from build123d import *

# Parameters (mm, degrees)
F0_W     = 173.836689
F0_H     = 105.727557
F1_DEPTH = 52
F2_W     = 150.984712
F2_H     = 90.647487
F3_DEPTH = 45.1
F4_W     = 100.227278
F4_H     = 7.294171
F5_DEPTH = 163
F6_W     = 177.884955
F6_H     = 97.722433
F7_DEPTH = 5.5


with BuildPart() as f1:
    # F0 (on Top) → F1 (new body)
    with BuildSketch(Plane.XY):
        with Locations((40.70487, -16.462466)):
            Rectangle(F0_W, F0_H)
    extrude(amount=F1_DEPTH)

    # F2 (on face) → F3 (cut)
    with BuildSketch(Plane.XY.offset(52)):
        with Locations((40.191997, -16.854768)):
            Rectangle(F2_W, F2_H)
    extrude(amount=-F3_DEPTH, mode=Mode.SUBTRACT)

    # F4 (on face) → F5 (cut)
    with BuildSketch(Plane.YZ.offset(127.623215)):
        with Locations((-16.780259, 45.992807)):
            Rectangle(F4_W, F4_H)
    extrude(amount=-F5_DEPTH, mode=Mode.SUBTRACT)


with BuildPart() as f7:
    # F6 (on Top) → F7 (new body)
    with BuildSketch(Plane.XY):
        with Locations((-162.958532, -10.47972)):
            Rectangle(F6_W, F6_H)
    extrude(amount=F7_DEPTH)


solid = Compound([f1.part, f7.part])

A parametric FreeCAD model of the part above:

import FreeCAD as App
import Part
import Sketcher

doc = App.newDocument("Part")
body = doc.addObject("PartDesign::Body", "Body")

# Sketch on XY plane
sketch1 = body.newObject("Sketcher::SketchObject", "Sketch")
sketch1.AttachmentSupport = (doc.getObject("XY_Plane"), [""])
sketch1.MapMode = "FlatFace"
sketch1.addGeometry([
    Part.LineSegment(App.Vector(-46, 36, 0), App.Vector(-46, -69, 0)),
    Part.LineSegment(App.Vector(-46, -69, 0), App.Vector(128, -69, 0)),
    Part.LineSegment(App.Vector(128, -69, 0), App.Vector(128, 36, 0)),
    Part.LineSegment(App.Vector(128, 36, 0), App.Vector(-46, 36, 0)),
], False)
sketch1.addConstraint([
    Sketcher.Constraint("Coincident", 0, 2, 1, 1),
    Sketcher.Constraint("Coincident", 1, 2, 2, 1),
    Sketcher.Constraint("Coincident", 2, 2, 3, 1),
    Sketcher.Constraint("Coincident", 3, 2, 0, 1),
    Sketcher.Constraint("Vertical", 0),
    Sketcher.Constraint("Horizontal", 1),
    Sketcher.Constraint("Vertical", 2),
    Sketcher.Constraint("Horizontal", 3),
    Sketcher.Constraint("DistanceX", 1, 1, 1, 2, 173.836689),
    Sketcher.Constraint("DistanceY", 0, 2, 0, 1, 105.727557),
    Sketcher.Constraint("DistanceX", 0, 2, -1, 1, 46.213474),
    Sketcher.Constraint("DistanceY", 0, 2, -1, 1, 69.326245),
])
pad1 = body.newObject("PartDesign::Pad", "Pad")
pad1.Profile = sketch1
pad1.Length = 52

# Sketch on XY plane
sketch2 = body.newObject("Sketcher::SketchObject", "Sketch001")
sketch2.AttachmentSupport = (doc.getObject("XY_Plane"), [""])
sketch2.MapMode = "FlatFace"
sketch2.AttachmentOffset = App.Placement(App.Vector(0, 0, 52), App.Rotation())
sketch2.addGeometry([
    Part.LineSegment(App.Vector(-35, 28, 0), App.Vector(-35, -62, 0)),
    Part.LineSegment(App.Vector(-35, -62, 0), App.Vector(116, -62, 0)),
    Part.LineSegment(App.Vector(116, -62, 0), App.Vector(116, 28, 0)),
    Part.LineSegment(App.Vector(116, 28, 0), App.Vector(-35, 28, 0)),
], False)
sketch2.addConstraint([
    Sketcher.Constraint("Coincident", 0, 2, 1, 1),
    Sketcher.Constraint("Coincident", 1, 2, 2, 1),
    Sketcher.Constraint("Coincident", 2, 2, 3, 1),
    Sketcher.Constraint("Coincident", 3, 2, 0, 1),
    Sketcher.Constraint("Vertical", 0),
    Sketcher.Constraint("Horizontal", 1),
    Sketcher.Constraint("Vertical", 2),
    Sketcher.Constraint("Horizontal", 3),
    Sketcher.Constraint("DistanceX", 1, 1, 1, 2, 150.984712),
    Sketcher.Constraint("DistanceY", 0, 2, 0, 1, 90.647487),
    Sketcher.Constraint("DistanceX", 0, 2, -1, 1, 35.300359),
    Sketcher.Constraint("DistanceY", 0, 2, -1, 1, 62.178511),
])
pocket1 = body.newObject("PartDesign::Pocket", "Pocket")
pocket1.Profile = sketch2
pocket1.Length = 45.1

# Sketch on YZ plane
sketch3 = body.newObject("Sketcher::SketchObject", "Sketch002")
sketch3.AttachmentSupport = (doc.getObject("YZ_Plane"), [""])
sketch3.MapMode = "FlatFace"
sketch3.AttachmentOffset = App.Placement(App.Vector(0, 0, 127.623215), App.Rotation())
sketch3.addGeometry([
    Part.LineSegment(App.Vector(-67, 50, 0), App.Vector(-67, 42, 0)),
    Part.LineSegment(App.Vector(-67, 42, 0), App.Vector(33, 42, 0)),
    Part.LineSegment(App.Vector(33, 42, 0), App.Vector(33, 50, 0)),
    Part.LineSegment(App.Vector(33, 50, 0), App.Vector(-67, 50, 0)),
], False)
sketch3.addConstraint([
    Sketcher.Constraint("Coincident", 0, 2, 1, 1),
    Sketcher.Constraint("Coincident", 1, 2, 2, 1),
    Sketcher.Constraint("Coincident", 2, 2, 3, 1),
    Sketcher.Constraint("Coincident", 3, 2, 0, 1),
    Sketcher.Constraint("Vertical", 0),
    Sketcher.Constraint("Horizontal", 1),
    Sketcher.Constraint("Vertical", 2),
    Sketcher.Constraint("Horizontal", 3),
    Sketcher.Constraint("DistanceY", 0, 2, 0, 1, 7.294171),
    Sketcher.Constraint("DistanceX", 1, 1, 1, 2, 100.227278),
    Sketcher.Constraint("DistanceY", -1, 1, 0, 2, 42.345722),
    Sketcher.Constraint("DistanceX", -1, 1, 1, 2, 33.33338),
])
pocket2 = body.newObject("PartDesign::Pocket", "Pocket001")
pocket2.Profile = sketch3
pocket2.Length = 163
body2 = doc.addObject("PartDesign::Body", "Body001")

# Sketch on XY plane
sketch4 = body2.newObject("Sketcher::SketchObject", "Sketch003")
sketch4.AttachmentSupport = (doc.getObject("XY_Plane001"), [""])
sketch4.MapMode = "FlatFace"
sketch4.addGeometry([
    Part.LineSegment(App.Vector(-252, 38, 0), App.Vector(-252, -59, 0)),
    Part.LineSegment(App.Vector(-252, -59, 0), App.Vector(-74, -59, 0)),
    Part.LineSegment(App.Vector(-74, -59, 0), App.Vector(-74, 38, 0)),
    Part.LineSegment(App.Vector(-74, 38, 0), App.Vector(-252, 38, 0)),
], False)
sketch4.addConstraint([
    Sketcher.Constraint("Coincident", 0, 2, 1, 1),
    Sketcher.Constraint("Coincident", 1, 2, 2, 1),
    Sketcher.Constraint("Coincident", 2, 2, 3, 1),
    Sketcher.Constraint("Coincident", 3, 2, 0, 1),
    Sketcher.Constraint("Vertical", 0),
    Sketcher.Constraint("Horizontal", 1),
    Sketcher.Constraint("Vertical", 2),
    Sketcher.Constraint("Horizontal", 3),
    Sketcher.Constraint("DistanceX", 1, 1, 1, 2, 177.884955),
    Sketcher.Constraint("DistanceY", 0, 2, 0, 1, 97.722433),
    Sketcher.Constraint("DistanceX", 0, 2, -1, 1, 251.901009),
    Sketcher.Constraint("DistanceY", 0, 2, -1, 1, 59.340936),
])
pad2 = body2.newObject("PartDesign::Pad", "Pad001")
pad2.Profile = sketch4
pad2.Length = 5.5

doc.recompute()
